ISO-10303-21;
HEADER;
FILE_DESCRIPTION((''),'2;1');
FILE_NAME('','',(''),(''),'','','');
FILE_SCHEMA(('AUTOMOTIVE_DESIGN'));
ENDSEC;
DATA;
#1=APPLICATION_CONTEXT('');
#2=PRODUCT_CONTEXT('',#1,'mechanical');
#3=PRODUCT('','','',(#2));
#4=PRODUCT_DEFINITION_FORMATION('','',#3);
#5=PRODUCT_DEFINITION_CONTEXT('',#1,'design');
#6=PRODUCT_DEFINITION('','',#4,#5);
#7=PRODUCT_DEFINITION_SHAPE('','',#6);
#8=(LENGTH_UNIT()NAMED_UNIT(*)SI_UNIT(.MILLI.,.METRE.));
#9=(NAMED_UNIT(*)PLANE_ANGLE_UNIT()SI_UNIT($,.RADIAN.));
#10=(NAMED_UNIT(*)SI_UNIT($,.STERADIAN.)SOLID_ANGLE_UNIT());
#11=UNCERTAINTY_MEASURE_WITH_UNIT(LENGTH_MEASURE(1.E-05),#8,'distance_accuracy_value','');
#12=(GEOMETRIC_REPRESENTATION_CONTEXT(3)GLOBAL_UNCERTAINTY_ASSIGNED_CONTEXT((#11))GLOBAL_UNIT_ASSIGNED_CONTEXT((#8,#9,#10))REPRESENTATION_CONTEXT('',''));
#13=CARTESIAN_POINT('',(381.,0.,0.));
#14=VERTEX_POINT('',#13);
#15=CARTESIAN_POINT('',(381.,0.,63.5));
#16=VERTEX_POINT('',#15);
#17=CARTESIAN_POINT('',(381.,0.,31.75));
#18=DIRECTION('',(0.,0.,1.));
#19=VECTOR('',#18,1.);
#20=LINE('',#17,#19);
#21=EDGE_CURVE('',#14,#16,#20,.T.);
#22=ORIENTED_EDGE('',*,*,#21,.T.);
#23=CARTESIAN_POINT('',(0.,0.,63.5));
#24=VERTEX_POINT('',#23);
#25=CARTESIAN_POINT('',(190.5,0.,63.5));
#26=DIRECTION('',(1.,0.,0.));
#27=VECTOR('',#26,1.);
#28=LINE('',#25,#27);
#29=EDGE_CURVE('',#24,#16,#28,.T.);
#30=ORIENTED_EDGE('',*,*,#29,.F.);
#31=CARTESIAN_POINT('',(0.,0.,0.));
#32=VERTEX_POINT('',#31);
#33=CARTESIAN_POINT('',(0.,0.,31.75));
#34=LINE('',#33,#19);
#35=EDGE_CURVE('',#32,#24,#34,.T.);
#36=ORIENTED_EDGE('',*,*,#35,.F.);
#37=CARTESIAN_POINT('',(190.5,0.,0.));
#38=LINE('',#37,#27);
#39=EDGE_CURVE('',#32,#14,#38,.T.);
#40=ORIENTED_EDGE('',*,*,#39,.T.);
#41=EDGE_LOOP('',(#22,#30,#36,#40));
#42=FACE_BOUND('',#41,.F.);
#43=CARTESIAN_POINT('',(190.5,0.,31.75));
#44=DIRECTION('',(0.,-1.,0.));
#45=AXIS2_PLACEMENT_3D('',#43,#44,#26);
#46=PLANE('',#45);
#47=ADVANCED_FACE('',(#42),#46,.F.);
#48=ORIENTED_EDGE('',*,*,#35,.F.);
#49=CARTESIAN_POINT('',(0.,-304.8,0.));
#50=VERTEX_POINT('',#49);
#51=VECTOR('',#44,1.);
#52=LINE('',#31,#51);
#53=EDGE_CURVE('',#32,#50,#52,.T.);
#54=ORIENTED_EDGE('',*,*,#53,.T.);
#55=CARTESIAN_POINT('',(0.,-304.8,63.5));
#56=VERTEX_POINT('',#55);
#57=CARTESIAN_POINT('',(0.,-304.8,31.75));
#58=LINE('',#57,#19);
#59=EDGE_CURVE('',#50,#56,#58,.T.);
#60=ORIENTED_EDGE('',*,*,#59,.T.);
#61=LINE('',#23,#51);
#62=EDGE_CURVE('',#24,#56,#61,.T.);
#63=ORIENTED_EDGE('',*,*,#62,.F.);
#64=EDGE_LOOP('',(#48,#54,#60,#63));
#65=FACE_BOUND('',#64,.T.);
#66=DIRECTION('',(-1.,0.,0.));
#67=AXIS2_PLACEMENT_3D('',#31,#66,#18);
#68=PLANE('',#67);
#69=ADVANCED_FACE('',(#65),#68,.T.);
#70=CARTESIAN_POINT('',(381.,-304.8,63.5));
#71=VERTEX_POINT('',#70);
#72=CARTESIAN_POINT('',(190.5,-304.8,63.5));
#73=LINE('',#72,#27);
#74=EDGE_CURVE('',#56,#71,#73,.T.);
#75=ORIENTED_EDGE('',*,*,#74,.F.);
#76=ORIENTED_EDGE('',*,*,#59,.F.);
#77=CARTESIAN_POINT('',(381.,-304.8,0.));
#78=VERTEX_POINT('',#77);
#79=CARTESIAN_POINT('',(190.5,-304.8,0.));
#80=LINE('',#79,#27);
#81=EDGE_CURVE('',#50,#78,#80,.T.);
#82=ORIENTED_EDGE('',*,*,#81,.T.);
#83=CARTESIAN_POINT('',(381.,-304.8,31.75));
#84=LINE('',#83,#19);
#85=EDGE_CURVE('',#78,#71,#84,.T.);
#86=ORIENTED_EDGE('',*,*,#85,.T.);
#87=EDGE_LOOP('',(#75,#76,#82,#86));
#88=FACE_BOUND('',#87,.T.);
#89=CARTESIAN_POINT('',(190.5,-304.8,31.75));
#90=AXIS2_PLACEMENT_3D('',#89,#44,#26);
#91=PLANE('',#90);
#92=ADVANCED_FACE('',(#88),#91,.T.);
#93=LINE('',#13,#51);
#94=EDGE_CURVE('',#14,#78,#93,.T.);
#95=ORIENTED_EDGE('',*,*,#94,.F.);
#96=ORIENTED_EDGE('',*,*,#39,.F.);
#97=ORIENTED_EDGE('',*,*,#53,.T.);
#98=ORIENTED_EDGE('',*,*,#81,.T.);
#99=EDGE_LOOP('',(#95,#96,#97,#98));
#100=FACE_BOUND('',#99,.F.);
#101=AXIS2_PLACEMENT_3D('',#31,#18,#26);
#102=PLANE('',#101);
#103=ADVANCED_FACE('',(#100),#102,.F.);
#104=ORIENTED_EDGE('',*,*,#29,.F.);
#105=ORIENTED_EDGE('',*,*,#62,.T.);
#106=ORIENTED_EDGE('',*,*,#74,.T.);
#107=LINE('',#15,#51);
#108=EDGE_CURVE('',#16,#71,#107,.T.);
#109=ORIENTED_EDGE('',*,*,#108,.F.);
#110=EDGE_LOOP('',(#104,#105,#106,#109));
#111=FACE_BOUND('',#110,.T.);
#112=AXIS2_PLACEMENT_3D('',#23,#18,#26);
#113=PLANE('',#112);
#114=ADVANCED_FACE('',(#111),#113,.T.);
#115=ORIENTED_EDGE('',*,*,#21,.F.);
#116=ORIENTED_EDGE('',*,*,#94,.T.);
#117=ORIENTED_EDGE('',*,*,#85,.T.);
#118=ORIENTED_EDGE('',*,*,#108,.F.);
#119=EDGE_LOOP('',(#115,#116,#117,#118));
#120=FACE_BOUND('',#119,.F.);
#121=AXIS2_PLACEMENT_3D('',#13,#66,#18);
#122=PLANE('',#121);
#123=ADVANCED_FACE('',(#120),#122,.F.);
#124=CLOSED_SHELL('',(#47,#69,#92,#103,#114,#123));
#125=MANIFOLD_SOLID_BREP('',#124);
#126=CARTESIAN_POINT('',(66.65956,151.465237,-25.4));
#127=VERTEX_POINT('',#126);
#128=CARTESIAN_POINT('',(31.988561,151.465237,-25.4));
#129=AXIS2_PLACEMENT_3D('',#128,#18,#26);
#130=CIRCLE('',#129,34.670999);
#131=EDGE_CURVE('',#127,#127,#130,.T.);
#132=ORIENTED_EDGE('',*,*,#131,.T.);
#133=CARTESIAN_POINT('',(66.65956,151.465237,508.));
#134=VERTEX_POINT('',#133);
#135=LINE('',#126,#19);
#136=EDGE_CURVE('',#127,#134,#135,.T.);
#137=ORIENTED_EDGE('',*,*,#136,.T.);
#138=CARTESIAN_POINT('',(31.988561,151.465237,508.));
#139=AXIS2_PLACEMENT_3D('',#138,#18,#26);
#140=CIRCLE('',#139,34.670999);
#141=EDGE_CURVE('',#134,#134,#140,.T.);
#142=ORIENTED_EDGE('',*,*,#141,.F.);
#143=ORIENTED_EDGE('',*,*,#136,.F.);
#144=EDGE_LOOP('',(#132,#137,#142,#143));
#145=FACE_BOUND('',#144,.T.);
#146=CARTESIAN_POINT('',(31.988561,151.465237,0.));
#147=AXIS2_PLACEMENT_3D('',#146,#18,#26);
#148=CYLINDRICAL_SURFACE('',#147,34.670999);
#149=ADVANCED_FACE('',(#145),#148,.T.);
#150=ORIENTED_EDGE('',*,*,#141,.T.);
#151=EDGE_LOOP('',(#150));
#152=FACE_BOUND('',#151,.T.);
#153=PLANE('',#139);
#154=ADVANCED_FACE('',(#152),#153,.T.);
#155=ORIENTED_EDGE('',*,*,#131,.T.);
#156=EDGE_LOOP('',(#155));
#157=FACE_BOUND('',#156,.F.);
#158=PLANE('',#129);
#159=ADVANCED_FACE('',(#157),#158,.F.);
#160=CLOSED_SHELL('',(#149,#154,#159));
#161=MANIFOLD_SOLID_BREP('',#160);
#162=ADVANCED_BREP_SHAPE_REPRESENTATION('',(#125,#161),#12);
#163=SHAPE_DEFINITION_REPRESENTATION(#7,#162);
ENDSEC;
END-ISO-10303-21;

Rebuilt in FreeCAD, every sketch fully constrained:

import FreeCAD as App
import Part
import Sketcher
from FreeCAD import Vector
Q = App.Units.Quantity


def add_polygon(sketch, points):
    """Adds a closed chain of lines whose ends are joined by coincident constraints."""
    first, n = sketch.GeometryCount, len(points)
    for a, b in zip(points, points[1:] + points[:1]):
        sketch.addGeometry(Part.LineSegment(App.Vector(*a, 0), App.Vector(*b, 0)), False)
    for i in range(n):
        sketch.addConstraint(Sketcher.Constraint("Coincident", first + i, 2, first + (i + 1) % n, 1))

doc = App.newDocument("Part")
body = doc.addObject("PartDesign::Body", "Body")

# Sketch on XZ plane
sketch1 = doc.addObject("Sketcher::SketchObject", "Sketch")
body.addObject(sketch1)
sketch1.AttachmentSupport = (doc.XZ_Plane, [""])
sketch1.MapMode = "FlatFace"
add_polygon(sketch1, [(0, 63.5), (0, 0), (381, 0), (381, 63.5)])  # lines 0-3
sketch1.addConstraint(Sketcher.Constraint("Vertical", 0))
sketch1.addConstraint(Sketcher.Constraint("Horizontal", 1))
sketch1.addConstraint(Sketcher.Constraint("Vertical", 2))
sketch1.addConstraint(Sketcher.Constraint("Horizontal", 3))
sketch1.addConstraint(Sketcher.Constraint("Coincident", 0, 2, -1, 1))
sketch1.addConstraint(Sketcher.Constraint("DistanceX", 1, 1, 1, 2, Q("15 in")))
sketch1.addConstraint(Sketcher.Constraint("DistanceY", 0, 2, 0, 1, Q("2.5 in")))
pad1 = doc.addObject("PartDesign::Pad", "Pad")
body.addObject(pad1)
pad1.Profile = sketch1
pad1.Length = Q("12 in")
body2 = doc.addObject("PartDesign::Body", "Body001")

# Sketch on XY plane
sketch2 = doc.addObject("Sketcher::SketchObject", "Sketch001")
body2.addObject(sketch2)
sketch2.AttachmentSupport = (doc.getObject("XY_Plane001"), [""])
sketch2.MapMode = "FlatFace"
sketch2.addGeometry(Part.Circle(Vector(31.988561, 151.465237, 0), Vector(0, 0, 1), 34.670999), False)
sketch2.addConstraint(Sketcher.Constraint("Diameter", 0, Q("2.7299999 in")))
sketch2.addConstraint(Sketcher.Constraint("DistanceX", -1, 1, 0, 3, 31.988561))
sketch2.addConstraint(Sketcher.Constraint("DistanceY", -1, 1, 0, 3, 151.465237))
pad2 = doc.addObject("PartDesign::Pad", "Pad001")
body2.addObject(pad2)
pad2.Profile = sketch2
pad2.Type = "TwoLengths"
pad2.Length = Q("20 in")
pad2.Length2 = Q("1 in")

doc.recompute()
